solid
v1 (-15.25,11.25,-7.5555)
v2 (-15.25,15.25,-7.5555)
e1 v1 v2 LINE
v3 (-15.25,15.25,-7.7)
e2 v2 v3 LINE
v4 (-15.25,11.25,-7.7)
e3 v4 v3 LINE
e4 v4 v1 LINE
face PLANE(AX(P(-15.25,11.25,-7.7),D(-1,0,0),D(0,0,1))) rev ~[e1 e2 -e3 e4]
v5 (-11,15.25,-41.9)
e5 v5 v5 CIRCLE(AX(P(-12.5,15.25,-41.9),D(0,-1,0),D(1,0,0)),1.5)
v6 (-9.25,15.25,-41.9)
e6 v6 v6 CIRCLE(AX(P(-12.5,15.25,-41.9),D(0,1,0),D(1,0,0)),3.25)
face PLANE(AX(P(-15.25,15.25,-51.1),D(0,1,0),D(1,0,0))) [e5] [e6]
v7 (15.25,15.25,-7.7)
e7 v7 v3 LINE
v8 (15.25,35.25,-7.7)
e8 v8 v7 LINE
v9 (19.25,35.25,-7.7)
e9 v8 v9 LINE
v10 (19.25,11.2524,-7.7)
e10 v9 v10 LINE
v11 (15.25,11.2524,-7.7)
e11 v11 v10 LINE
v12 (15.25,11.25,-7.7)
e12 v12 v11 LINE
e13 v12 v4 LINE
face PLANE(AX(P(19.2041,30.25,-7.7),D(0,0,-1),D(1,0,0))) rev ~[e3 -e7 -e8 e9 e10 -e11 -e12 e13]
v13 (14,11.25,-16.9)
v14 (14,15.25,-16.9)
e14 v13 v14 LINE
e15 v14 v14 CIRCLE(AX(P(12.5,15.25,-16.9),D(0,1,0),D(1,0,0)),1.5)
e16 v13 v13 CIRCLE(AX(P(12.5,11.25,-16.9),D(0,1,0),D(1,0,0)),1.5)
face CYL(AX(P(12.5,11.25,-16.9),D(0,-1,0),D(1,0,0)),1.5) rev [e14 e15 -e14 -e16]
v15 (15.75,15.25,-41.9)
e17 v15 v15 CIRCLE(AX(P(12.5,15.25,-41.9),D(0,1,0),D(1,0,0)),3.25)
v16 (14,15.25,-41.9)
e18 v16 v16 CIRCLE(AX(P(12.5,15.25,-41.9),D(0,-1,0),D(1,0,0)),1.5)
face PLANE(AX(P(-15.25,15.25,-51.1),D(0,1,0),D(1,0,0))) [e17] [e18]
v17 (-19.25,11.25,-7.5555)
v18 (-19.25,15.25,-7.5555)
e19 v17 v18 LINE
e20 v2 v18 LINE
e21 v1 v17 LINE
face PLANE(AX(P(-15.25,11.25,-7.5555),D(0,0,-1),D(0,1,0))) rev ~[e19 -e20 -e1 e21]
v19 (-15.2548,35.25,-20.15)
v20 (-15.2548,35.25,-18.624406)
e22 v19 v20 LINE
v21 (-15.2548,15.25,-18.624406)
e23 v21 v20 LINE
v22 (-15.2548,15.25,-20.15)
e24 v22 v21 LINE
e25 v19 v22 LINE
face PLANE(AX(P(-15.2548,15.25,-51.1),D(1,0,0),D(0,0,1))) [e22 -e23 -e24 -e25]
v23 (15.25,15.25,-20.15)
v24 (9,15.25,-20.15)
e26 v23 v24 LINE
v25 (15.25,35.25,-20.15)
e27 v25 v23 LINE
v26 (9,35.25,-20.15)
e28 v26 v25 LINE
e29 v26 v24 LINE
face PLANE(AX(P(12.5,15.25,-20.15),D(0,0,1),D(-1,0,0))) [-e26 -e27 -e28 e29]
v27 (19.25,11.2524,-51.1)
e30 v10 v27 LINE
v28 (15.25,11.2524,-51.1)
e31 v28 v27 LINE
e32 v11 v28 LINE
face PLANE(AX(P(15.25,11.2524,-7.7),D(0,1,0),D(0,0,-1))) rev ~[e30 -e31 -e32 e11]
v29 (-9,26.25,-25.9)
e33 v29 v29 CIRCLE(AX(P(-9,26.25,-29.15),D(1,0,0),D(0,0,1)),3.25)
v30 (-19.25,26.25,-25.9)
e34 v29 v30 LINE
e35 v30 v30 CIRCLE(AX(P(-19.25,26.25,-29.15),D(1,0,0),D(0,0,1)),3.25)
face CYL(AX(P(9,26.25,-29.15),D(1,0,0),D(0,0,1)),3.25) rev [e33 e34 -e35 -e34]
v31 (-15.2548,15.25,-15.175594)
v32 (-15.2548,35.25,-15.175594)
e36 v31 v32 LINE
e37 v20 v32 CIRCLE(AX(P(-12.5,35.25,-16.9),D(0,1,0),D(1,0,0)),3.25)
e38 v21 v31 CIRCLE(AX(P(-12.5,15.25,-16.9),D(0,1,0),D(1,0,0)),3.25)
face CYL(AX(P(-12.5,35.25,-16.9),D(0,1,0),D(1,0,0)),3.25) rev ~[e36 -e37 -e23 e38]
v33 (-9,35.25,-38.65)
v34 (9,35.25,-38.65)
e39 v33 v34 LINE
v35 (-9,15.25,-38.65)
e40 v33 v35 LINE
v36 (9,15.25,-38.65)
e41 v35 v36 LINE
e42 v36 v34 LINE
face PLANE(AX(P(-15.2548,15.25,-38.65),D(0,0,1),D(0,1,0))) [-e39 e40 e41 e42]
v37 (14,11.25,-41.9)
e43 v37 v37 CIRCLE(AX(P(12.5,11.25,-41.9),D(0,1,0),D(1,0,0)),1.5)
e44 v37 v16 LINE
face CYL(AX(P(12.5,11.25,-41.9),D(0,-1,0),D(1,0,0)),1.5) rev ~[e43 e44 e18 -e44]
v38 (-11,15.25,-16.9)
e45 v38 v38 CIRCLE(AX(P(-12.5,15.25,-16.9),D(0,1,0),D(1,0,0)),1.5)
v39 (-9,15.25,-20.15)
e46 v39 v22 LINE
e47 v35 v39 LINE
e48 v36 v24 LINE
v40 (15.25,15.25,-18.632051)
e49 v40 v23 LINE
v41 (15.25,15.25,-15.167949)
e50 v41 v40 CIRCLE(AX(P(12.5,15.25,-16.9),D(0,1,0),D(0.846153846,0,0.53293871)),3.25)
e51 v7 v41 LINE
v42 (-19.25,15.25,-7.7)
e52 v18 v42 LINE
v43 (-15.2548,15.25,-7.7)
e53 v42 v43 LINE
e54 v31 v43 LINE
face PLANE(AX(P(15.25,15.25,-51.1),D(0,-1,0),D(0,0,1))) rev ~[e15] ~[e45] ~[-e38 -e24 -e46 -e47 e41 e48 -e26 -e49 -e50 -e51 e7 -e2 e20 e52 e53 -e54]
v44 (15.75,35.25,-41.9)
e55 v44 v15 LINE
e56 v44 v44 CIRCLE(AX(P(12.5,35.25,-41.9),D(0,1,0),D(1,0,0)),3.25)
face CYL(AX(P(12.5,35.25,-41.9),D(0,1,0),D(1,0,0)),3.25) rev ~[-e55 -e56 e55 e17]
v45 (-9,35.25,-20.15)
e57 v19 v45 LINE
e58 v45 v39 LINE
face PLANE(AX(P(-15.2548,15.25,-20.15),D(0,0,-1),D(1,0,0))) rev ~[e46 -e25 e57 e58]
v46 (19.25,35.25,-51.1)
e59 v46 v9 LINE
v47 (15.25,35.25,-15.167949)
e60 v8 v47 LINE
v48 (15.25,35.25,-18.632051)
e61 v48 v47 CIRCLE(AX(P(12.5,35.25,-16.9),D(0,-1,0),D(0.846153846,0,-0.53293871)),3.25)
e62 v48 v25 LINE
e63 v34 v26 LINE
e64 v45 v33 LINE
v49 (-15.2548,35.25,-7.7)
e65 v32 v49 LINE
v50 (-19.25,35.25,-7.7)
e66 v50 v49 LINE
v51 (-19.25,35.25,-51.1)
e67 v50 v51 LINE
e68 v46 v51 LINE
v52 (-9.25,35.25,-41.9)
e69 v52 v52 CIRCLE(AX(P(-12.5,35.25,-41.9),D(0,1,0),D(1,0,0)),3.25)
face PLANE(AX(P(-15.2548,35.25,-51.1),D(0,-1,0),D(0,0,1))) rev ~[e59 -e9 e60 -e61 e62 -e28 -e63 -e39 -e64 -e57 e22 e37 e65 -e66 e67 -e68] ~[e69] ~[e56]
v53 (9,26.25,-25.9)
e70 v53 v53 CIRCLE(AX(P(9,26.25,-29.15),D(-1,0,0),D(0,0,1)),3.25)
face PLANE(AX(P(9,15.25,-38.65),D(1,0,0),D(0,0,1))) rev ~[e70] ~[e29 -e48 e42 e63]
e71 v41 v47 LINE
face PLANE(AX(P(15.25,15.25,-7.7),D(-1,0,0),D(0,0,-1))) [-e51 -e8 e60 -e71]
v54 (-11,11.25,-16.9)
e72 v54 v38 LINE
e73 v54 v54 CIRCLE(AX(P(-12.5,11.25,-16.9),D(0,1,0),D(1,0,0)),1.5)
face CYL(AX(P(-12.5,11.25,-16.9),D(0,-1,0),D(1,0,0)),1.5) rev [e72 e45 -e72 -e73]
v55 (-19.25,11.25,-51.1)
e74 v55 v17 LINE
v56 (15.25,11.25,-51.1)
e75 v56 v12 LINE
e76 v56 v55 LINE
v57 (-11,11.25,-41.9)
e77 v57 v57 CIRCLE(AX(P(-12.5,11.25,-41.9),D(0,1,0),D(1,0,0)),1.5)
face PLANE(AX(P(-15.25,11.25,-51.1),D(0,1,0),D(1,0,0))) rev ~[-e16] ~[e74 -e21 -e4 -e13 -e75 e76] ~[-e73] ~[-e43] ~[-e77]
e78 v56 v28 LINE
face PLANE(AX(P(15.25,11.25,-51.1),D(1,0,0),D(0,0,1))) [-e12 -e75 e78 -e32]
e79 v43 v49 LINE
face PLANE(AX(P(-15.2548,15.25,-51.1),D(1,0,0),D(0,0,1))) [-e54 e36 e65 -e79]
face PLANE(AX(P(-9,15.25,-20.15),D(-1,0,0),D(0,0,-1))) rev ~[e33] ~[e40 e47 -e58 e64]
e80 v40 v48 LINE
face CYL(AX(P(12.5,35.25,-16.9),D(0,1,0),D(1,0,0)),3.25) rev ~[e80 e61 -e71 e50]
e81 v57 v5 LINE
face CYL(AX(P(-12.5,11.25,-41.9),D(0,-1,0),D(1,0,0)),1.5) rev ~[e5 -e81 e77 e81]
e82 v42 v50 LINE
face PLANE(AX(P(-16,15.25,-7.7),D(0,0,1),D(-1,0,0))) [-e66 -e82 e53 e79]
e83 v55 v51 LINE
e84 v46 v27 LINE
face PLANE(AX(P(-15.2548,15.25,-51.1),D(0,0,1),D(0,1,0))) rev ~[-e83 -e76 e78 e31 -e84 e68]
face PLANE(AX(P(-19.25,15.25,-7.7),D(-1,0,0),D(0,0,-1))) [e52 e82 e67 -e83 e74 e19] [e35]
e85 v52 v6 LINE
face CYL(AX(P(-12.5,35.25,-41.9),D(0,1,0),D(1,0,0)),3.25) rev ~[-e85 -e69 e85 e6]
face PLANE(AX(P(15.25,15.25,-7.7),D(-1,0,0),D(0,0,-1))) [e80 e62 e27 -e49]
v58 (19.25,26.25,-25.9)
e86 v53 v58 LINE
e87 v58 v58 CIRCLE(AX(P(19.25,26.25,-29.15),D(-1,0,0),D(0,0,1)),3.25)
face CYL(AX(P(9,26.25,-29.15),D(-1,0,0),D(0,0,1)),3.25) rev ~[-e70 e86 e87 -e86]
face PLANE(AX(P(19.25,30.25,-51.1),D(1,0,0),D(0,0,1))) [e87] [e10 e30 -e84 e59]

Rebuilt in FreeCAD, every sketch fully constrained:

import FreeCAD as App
import Part
import Sketcher
from FreeCAD import Vector
Q = App.Units.Quantity


def add_polygon(sketch, points):
    """Adds a closed chain of lines whose ends are joined by coincident constraints."""
    first, n = sketch.GeometryCount, len(points)
    for a, b in zip(points, points[1:] + points[:1]):
        sketch.addGeometry(Part.LineSegment(App.Vector(*a, 0), App.Vector(*b, 0)), False)
    for i in range(n):
        sketch.addConstraint(Sketcher.Constraint("Coincident", first + i, 2, first + (i + 1) % n, 1))

doc = App.newDocument("Part")
body = doc.addObject("PartDesign::Body", "Body")

# Sketch on XZ plane
sketch1 = body.newObject("Sketcher::SketchObject", "Sketch")
sketch1.AttachmentSupport = (doc.getObject("XZ_Plane"), [""])
sketch1.MapMode = "FlatFace"
sketch1.AttachmentOffset = App.Placement(Vector(0, 0, -11.25), App.Rotation())
add_polygon(sketch1, [(15.2, -7.7), (15.2, -51.1), (-15.2, -51.1), (-15.2, -7.7)])  # lines 0-3
sketch1.addGeometry(Part.Circle(Vector(-12.5, -16.9, 0), Vector(0, 0, 1), 1.5), False)  # 4
sketch1.addGeometry(Part.Circle(Vector(12.5, -16.9, 0), Vector(0, 0, 1), 1.5), False)  # 5
sketch1.addGeometry(Part.Circle(Vector(-12.5, -41.9, 0), Vector(0, 0, 1), 1.5), False)  # 6
sketch1.addGeometry(Part.Circle(Vector(12.5, -41.9, 0), Vector(0, 0, 1), 1.5), False)  # 7
sketch1.addConstraint(Sketcher.Constraint("Vertical", 0))
sketch1.addConstraint(Sketcher.Constraint("Horizontal", 1))
sketch1.addConstraint(Sketcher.Constraint("Vertical", 2))
sketch1.addConstraint(Sketcher.Constraint("Horizontal", 3))
sketch1.addConstraint(Sketcher.Constraint("Equal", 4, 5))
sketch1.addConstraint(Sketcher.Constraint("Equal", 5, 6))
sketch1.addConstraint(Sketcher.Constraint("Equal", 6, 7))
sketch1.addConstraint(Sketcher.Constraint("Symmetric", 4, 3, 5, 3, -2))
sketch1.addConstraint(Sketcher.Constraint("Symmetric", 6, 3, 7, 3, -2))
sketch1.addConstraint(Sketcher.Constraint("Vertical", 4, 3, 6, 3))
sketch1.addConstraint(Sketcher.Constraint("Diameter", 4, Q("3 mm")))
sketch1.addConstraint(Sketcher.Constraint("DistanceX", 1, 2, 1, 1, Q("30.5 mm")))
sketch1.addConstraint(Sketcher.Constraint("DistanceY", 0, 2, 0, 1, Q("43.4 mm")))
sketch1.addConstraint(Sketcher.Constraint("DistanceX", 4, 3, 5, 3, Q("25 mm")))
sketch1.addConstraint(Sketcher.Constraint("DistanceY", 6, 3, 4, 3, Q("25 mm")))
sketch1.addConstraint(Sketcher.Constraint("DistanceY", 4, 3, -1, 1, Q("16.9 mm")))
sketch1.addConstraint(Sketcher.Constraint("DistanceY", 0, 2, -1, 1, Q("51.1 mm")))
sketch1.addConstraint(Sketcher.Constraint("DistanceX", -1, 1, 0, 2, Q("15.25 mm")))
pad1 = body.newObject("PartDesign::Pad", "Pad")
pad1.Profile = sketch1
pad1.Length = 4
pad1.Reversed = True

# Sketch on YZ plane
sketch2 = body.newObject("Sketcher::SketchObject", "Sketch001")
sketch2.AttachmentSupport = (doc.getObject("YZ_Plane"), [""])
sketch2.MapMode = "FlatFace"
sketch2.AttachmentOffset = App.Placement(Vector(0, 0, -15.25), App.Rotation())
add_polygon(sketch2, [(15.2, -51.1), (11.2, -51.1), (11.2, -7.6), (15.2, -7.6)])  # lines 0-3
sketch2.addConstraint(Sketcher.Constraint("Horizontal", 0))
sketch2.addConstraint(Sketcher.Constraint("Vertical", 1))
sketch2.addConstraint(Sketcher.Constraint("Horizontal", 2))
sketch2.addConstraint(Sketcher.Constraint("Vertical", 3))
sketch2.addConstraint(Sketcher.Constraint("DistanceX", 0, 2, 0, 1, Q("4 mm")))
sketch2.addConstraint(Sketcher.Constraint("DistanceY", 0, 2, -1, 1, Q("51.1 mm")))
sketch2.addConstraint(Sketcher.Constraint("DistanceX", -1, 1, 0, 2, Q("11.25 mm")))
sketch2.addConstraint(Sketcher.Constraint("DistanceY", 1, 1, 1, 2, Q("43.5445 mm")))
pad2 = body.newObject("PartDesign::Pad", "Pad001")
pad2.Profile = sketch2
pad2.Length = 4
pad2.Reversed = True

# Sketch on YZ plane
sketch3 = body.newObject("Sketcher::SketchObject", "Sketch002")
sketch3.AttachmentSupport = (doc.getObject("YZ_Plane"), [""])
sketch3.MapMode = "FlatFace"
sketch3.AttachmentOffset = App.Placement(Vector(0, 0, 15.25), App.Rotation())
add_polygon(sketch3, [(11.3, -7.7), (11.3, -51.1), (15.2, -51.1), (15.2, -7.7)])  # lines 0-3
sketch3.addConstraint(Sketcher.Constraint("Vertical", 0))
sketch3.addConstraint(Sketcher.Constraint("Horizontal", 1))
sketch3.addConstraint(Sketcher.Constraint("Vertical", 2))
sketch3.addConstraint(Sketcher.Constraint("Horizontal", 3))
sketch3.addConstraint(Sketcher.Constraint("DistanceY", 0, 2, 0, 1, Q("43.4 mm")))
sketch3.addConstraint(Sketcher.Constraint("DistanceY", 0, 2, -1, 1, Q("51.1 mm")))
sketch3.addConstraint(Sketcher.Constraint("DistanceX", -1, 1, 1, 2, Q("15.25 mm")))
sketch3.addConstraint(Sketcher.Constraint("DistanceX", 1, 1, 1, 2, Q("3.9976 mm")))
pad3 = body.newObject("PartDesign::Pad", "Pad002")
pad3.Profile = sketch3
pad3.Length = 4

# Sketch on XZ plane
sketch4 = body.newObject("Sketcher::SketchObject", "Sketch003")
sketch4.AttachmentSupport = (doc.getObject("XZ_Plane"), [""])
sketch4.MapMode = "FlatFace"
sketch4.AttachmentOffset = App.Placement(Vector(0, 0, -15.25), App.Rotation())
add_polygon(sketch4, [(-19.2, -7.7), (-15.3, -7.7), (-15.3, -51.1), (-19.2, -51.1)])  # lines 0-3
sketch4.addConstraint(Sketcher.Constraint("Horizontal", 0))
sketch4.addConstraint(Sketcher.Constraint("Vertical", 1))
sketch4.addConstraint(Sketcher.Constraint("Horizontal", 2))
sketch4.addConstraint(Sketcher.Constraint("Vertical", 3))
sketch4.addConstraint(Sketcher.Constraint("DistanceY", 1, 2, 1, 1, Q("43.4 mm")))
sketch4.addConstraint(Sketcher.Constraint("DistanceY", 0, 2, -1, 1, Q("7.7 mm")))
sketch4.addConstraint(Sketcher.Constraint("DistanceX", 2, 2, -1, 1, Q("19.25 mm")))
sketch4.addConstraint(Sketcher.Constraint("DistanceX", 0, 1, 0, 2, Q("3.9952 mm")))
pad4 = body.newObject("PartDesign::Pad", "Pad003")
pad4.Profile = sketch4
pad4.Length = 15
pad4.Reversed = True

# Sketch on XZ plane
sketch5 = body.newObject("Sketcher::SketchObject", "Sketch004")
sketch5.AttachmentSupport = (doc.getObject("XZ_Plane"), [""])
sketch5.MapMode = "FlatFace"
sketch5.AttachmentOffset = App.Placement(Vector(0, 0, -15.25), App.Rotation())
add_polygon(sketch5, [(19.2, -51.1), (15.2, -51.1), (15.2, -7.7), (19.2, -7.7)])  # lines 0-3
sketch5.addConstraint(Sketcher.Constraint("Horizontal", 0))
sketch5.addConstraint(Sketcher.Constraint("Vertical", 1))
sketch5.addConstraint(Sketcher.Constraint("Horizontal", 2))
sketch5.addConstraint(Sketcher.Constraint("Vertical", 3))
sketch5.addConstraint(Sketcher.Constraint("DistanceX", 0, 2, 0, 1, Q("4 mm")))
sketch5.addConstraint(Sketcher.Constraint("DistanceY", 1, 1, 1, 2, Q("43.4 mm")))
sketch5.addConstraint(Sketcher.Constraint("DistanceY", 0, 2, -1, 1, Q("51.1 mm")))
sketch5.addConstraint(Sketcher.Constraint("DistanceX", -1, 1, 0, 2, Q("15.25 mm")))
pad5 = body.newObject("PartDesign::Pad", "Pad004")
pad5.Profile = sketch5
pad5.Length = 15
pad5.Reversed = True

# Sketch on XZ plane
sketch6 = body.newObject("Sketcher::SketchObject", "Sketch005")
sketch6.AttachmentSupport = (doc.getObject("XZ_Plane"), [""])
sketch6.MapMode = "FlatFace"
sketch6.AttachmentOffset = App.Placement(Vector(0, 0, -15.25), App.Rotation())
add_polygon(sketch6, [(9, -39), (9, -20), (15, -20), (15, -39)])  # lines 0-3
add_polygon(sketch6, [(-15, -20), (-9, -20), (-9, -39), (-15, -39)])  # lines 4-7
sketch6.addConstraint(Sketcher.Constraint("Vertical", 0))
sketch6.addConstraint(Sketcher.Constraint("Horizontal", 1))
sketch6.addConstraint(Sketcher.Constraint("Vertical", 2))
sketch6.addConstraint(Sketcher.Constraint("Horizontal", 3))
sketch6.addConstraint(Sketcher.Constraint("Horizontal", 4))
sketch6.addConstraint(Sketcher.Constraint("Vertical", 5))
sketch6.addConstraint(Sketcher.Constraint("Horizontal", 6))
sketch6.addConstraint(Sketcher.Constraint("Vertical", 7))
sketch6.addConstraint(Sketcher.Constraint("Symmetric", 0, 2, 4, 2, -2))
sketch6.addConstraint(Sketcher.Constraint("Horizontal", 3, 2, 5, 2))
sketch6.addConstraint(Sketcher.Constraint("DistanceX", -1, 1, 0, 2, Q("9 mm")))
sketch6.addConstraint(Sketcher.Constraint("DistanceY", 0, 1, 0, 2, Q("18.5 mm")))
sketch6.addConstraint(Sketcher.Constraint("DistanceX", 1, 1, 1, 2, Q("6.25 mm")))
sketch6.addConstraint(Sketcher.Constraint("DistanceY", 0, 2, -1, 1, Q("20.15 mm")))
sketch6.addConstraint(Sketcher.Constraint("DistanceX", 4, 1, 4, 2, Q("6.2548 mm")))
pad6 = body.newObject("PartDesign::Pad", "Pad005")
pad6.Profile = sketch6
pad6.Length = 15
pad6.Reversed = True

# Sketch on XZ plane
sketch7 = body.newObject("Sketcher::SketchObject", "Sketch006")
sketch7.AttachmentSupport = (doc.getObject("XZ_Plane"), [""])
sketch7.MapMode = "FlatFace"
sketch7.AttachmentOffset = App.Placement(Vector(0, 0, -30.25), App.Rotation())
add_polygon(sketch7, [(-19.2, -51.1), (-19.2, -7.7), (-15.3, -7.7), (-15.3, -20.1), (-9, -20.1), (-9, -38.6), (-15.3, -38.6), (-15.3, -51.1)])  # lines 0-7
add_polygon(sketch7, [(15.2, -38.6), (9, -38.6), (9, -20.1), (15.2, -20.1), (15.2, -7.7), (19.2, -7.7), (19.2, -51.1), (15.2, -51.1)])  # lines 8-15
sketch7.addConstraint(Sketcher.Constraint("Vertical", 0))
sketch7.addConstraint(Sketcher.Constraint("Horizontal", 1))
sketch7.addConstraint(Sketcher.Constraint("Vertical", 2))
sketch7.addConstraint(Sketcher.Constraint("Horizontal", 3))
sketch7.addConstraint(Sketcher.Constraint("Vertical", 4))
sketch7.addConstraint(Sketcher.Constraint("Horizontal", 5))
sketch7.addConstraint(Sketcher.Constraint("Vertical", 6))
sketch7.addConstraint(Sketcher.Constraint("Horizontal", 7))
sketch7.addConstraint(Sketcher.Constraint("Horizontal", 8))
sketch7.addConstraint(Sketcher.Constraint("Vertical", 9))
sketch7.addConstraint(Sketcher.Constraint("Horizontal", 10))
sketch7.addConstraint(Sketcher.Constraint("Vertical", 11))
sketch7.addConstraint(Sketcher.Constraint("Horizontal", 12))
sketch7.addConstraint(Sketcher.Constraint("Vertical", 13))
sketch7.addConstraint(Sketcher.Constraint("Horizontal", 14))
sketch7.addConstraint(Sketcher.Constraint("Vertical", 15))
sketch7.addConstraint(Sketcher.Constraint("Symmetric", 4, 2, 8, 2, -2))
sketch7.addConstraint(Sketcher.Constraint("Horizontal", 3, 2, 9, 2))
sketch7.addConstraint(Sketcher.Constraint("Horizontal", 1, 2, 11, 2))
sketch7.addConstraint(Sketcher.Constraint("Horizontal", 7, 2, 13, 2))
sketch7.addConstraint(Sketcher.Constraint("Vertical", 2, 2, 5, 2))
sketch7.addConstraint(Sketcher.Constraint("Vertical", 11, 2, 14, 2))
sketch7.addConstraint(Sketcher.Constraint("Equal", 2, 6))
sketch7.addConstraint(Sketcher.Constraint("DistanceY", 0, 1, 0, 2, Q("43.4 mm")))
sketch7.addConstraint(Sketcher.Constraint("DistanceY", 4, 2, 4, 1, Q("18.5 mm")))
sketch7.addConstraint(Sketcher.Constraint("DistanceX", 3, 2, -1, 1, Q("9 mm")))
sketch7.addConstraint(Sketcher.Constraint("DistanceX", 8, 2, 8, 1, Q("6.25 mm")))
sketch7.addConstraint(Sketcher.Constraint("DistanceY", 0, 2, -1, 1, Q("7.7 mm")))
sketch7.addConstraint(Sketcher.Constraint("DistanceX", 12, 1, 12, 2, Q("3.954 mm")))
sketch7.addConstraint(Sketcher.Constraint("DistanceX", 0, 2, -1, 1, Q("19.25 mm")))
sketch7.addConstraint(Sketcher.Constraint("DistanceX", 1, 1, 1, 2, Q("3.9952 mm")))
pad7 = body.newObject("PartDesign::Pad", "Pad006")
pad7.Profile = sketch7
pad7.Length = 5
pad7.Reversed = True

# Sketch on XZ plane
sketch8 = body.newObject("Sketcher::SketchObject", "Sketch007")
sketch8.AttachmentSupport = (doc.getObject("XZ_Plane"), [""])
sketch8.MapMode = "FlatFace"
sketch8.AttachmentOffset = App.Placement(Vector(0, 0, -30.25), App.Rotation())
add_polygon(sketch8, [(19.204, -51.1), (19.204, -7.7), (19.25, -7.7), (19.25, -51.1)])  # lines 0-3
sketch8.addConstraint(Sketcher.Constraint("Vertical", 0))
sketch8.addConstraint(Sketcher.Constraint("Horizontal", 1))
sketch8.addConstraint(Sketcher.Constraint("Vertical", 2))
sketch8.addConstraint(Sketcher.Constraint("Horizontal", 3))
sketch8.addConstraint(Sketcher.Constraint("DistanceY", 0, 1, 0, 2, Q("43.4 mm")))
sketch8.addConstraint(Sketcher.Constraint("DistanceY", 0, 2, -1, 1, Q("7.7 mm")))
sketch8.addConstraint(Sketcher.Constraint("DistanceX", 1, 1, 1, 2, Q("0.046 mm")))
sketch8.addConstraint(Sketcher.Constraint("DistanceX", -1, 1, 1, 2, Q("19.25 mm")))
pad8 = body.newObject("PartDesign::Pad", "Pad007")
pad8.Profile = sketch8
pad8.Length = 5
pad8.Reversed = True

# Sketch on YZ plane
sketch9 = body.newObject("Sketcher::SketchObject", "Sketch008")
sketch9.AttachmentSupport = (doc.getObject("YZ_Plane"), [""])
sketch9.MapMode = "FlatFace"
sketch9.AttachmentOffset = App.Placement(Vector(0, 0, -15.2548), App.Rotation())
add_polygon(sketch9, [(35, -39), (15, -39), (15, -51), (35, -51)])  # lines 0-3
sketch9.addConstraint(Sketcher.Constraint("Horizontal", 0))
sketch9.addConstraint(Sketcher.Constraint("Vertical", 1))
sketch9.addConstraint(Sketcher.Constraint("Horizontal", 2))
sketch9.addConstraint(Sketcher.Constraint("Vertical", 3))
sketch9.addConstraint(Sketcher.Constraint("DistanceX", 0, 2, 0, 1, Q("20 mm")))
sketch9.addConstraint(Sketcher.Constraint("DistanceY", 1, 2, 1, 1, Q("12.45 mm")))
sketch9.addConstraint(Sketcher.Constraint("DistanceY", 1, 2, -1, 1, Q("51.1 mm")))
sketch9.addConstraint(Sketcher.Constraint("DistanceX", -1, 1, 0, 2, Q("15.25 mm")))
pad9 = body.newObject("PartDesign::Pad", "Pad008")
pad9.Profile = sketch9
pad9.Length = 30.5048

# Sketch on XZ plane
sketch10 = body.newObject("Sketcher::SketchObject", "Sketch009")
sketch10.AttachmentSupport = (doc.getObject("XZ_Plane"), [""])
sketch10.MapMode = "FlatFace"
sketch10.AttachmentOffset = App.Placement(Vector(0, 0, -11.25), App.Rotation())
sketch10.addGeometry(Part.Circle(Vector(12.5, -41.9, 0), Vector(0, 0, 1), 1.5), False)
sketch10.addGeometry(Part.Circle(Vector(-12.5, -41.9, 0), Vector(0, 0, 1), 1.5), False)
sketch10.addConstraint(Sketcher.Constraint("Equal", 0, 1))
sketch10.addConstraint(Sketcher.Constraint("Symmetric", 0, 3, 1, 3, -2))
sketch10.addConstraint(Sketcher.Constraint("Diameter", 0, Q("3 mm")))
sketch10.addConstraint(Sketcher.Constraint("DistanceX", 1, 3, 0, 3, Q("25 mm")))
sketch10.addConstraint(Sketcher.Constraint("DistanceY", 0, 3, -1, 1, Q("41.9 mm")))
pocket1 = body.newObject("PartDesign::Pocket", "Pocket")
pocket1.Profile = sketch10
pocket1.Type = "ThroughAll"

# Sketch on XZ plane
sketch11 = body.newObject("Sketcher::SketchObject", "Sketch010")
sketch11.AttachmentSupport = (doc.getObject("XZ_Plane"), [""])
sketch11.MapMode = "FlatFace"
sketch11.AttachmentOffset = App.Placement(Vector(0, 0, -35.25), App.Rotation())
sketch11.addGeometry(Part.Circle(Vector(-12.5, -41.9, 0), Vector(0, 0, 1), 3.2), False)
sketch11.addGeometry(Part.Circle(Vector(12.5, -41.9, 0), Vector(0, 0, 1), 3.2), False)
sketch11.addGeometry(Part.Circle(Vector(-12.5, -16.9, 0), Vector(0, 0, 1), 3.2), False)
sketch11.addGeometry(Part.Circle(Vector(12.5, -16.9, 0), Vector(0, 0, 1), 3.2), False)
sketch11.addConstraint(Sketcher.Constraint("Equal", 0, 1))
sketch11.addConstraint(Sketcher.Constraint("Equal", 1, 2))
sketch11.addConstraint(Sketcher.Constraint("Equal", 2, 3))
sketch11.addConstraint(Sketcher.Constraint("Symmetric", 0, 3, 1, 3, -2))
sketch11.addConstraint(Sketcher.Constraint("Symmetric", 2, 3, 3, 3, -2))
sketch11.addConstraint(Sketcher.Constraint("Vertical", 0, 3, 2, 3))
sketch11.addConstraint(Sketcher.Constraint("Diameter", 0, Q("6.5 mm")))
sketch11.addConstraint(Sketcher.Constraint("DistanceX", 0, 3, 1, 3, Q("25 mm")))
sketch11.addConstraint(Sketcher.Constraint("DistanceY", 0, 3, 2, 3, Q("25 mm")))
sketch11.addConstraint(Sketcher.Constraint("DistanceY", 0, 3, -1, 1, Q("41.9 mm")))
pocket2 = body.newObject("PartDesign::Pocket", "Pocket001")
pocket2.Profile = sketch11
pocket2.Length = 20
pocket2.Reversed = True

# Sketch on YZ plane
sketch12 = body.newObject("Sketcher::SketchObject", "Sketch011")
sketch12.AttachmentSupport = (doc.getObject("YZ_Plane"), [""])
sketch12.MapMode = "FlatFace"
sketch12.AttachmentOffset = App.Placement(Vector(0, 0, 9), App.Rotation())
sketch12.addGeometry(Part.Circle(Vector(26.2, -29.1, 0), Vector(0, 0, 1), 3.2), False)
sketch12.addConstraint(Sketcher.Constraint("Diameter", 0, Q("6.5 mm")))
sketch12.addConstraint(Sketcher.Constraint("DistanceX", -1, 1, 0, 3, Q("26.25 mm")))
sketch12.addConstraint(Sketcher.Constraint("DistanceY", 0, 3, -1, 1, Q("29.15 mm")))
pocket3 = body.newObject("PartDesign::Pocket", "Pocket002")
pocket3.Profile = sketch12
pocket3.Length = 70
pocket3.Midplane = True

doc.recompute()
